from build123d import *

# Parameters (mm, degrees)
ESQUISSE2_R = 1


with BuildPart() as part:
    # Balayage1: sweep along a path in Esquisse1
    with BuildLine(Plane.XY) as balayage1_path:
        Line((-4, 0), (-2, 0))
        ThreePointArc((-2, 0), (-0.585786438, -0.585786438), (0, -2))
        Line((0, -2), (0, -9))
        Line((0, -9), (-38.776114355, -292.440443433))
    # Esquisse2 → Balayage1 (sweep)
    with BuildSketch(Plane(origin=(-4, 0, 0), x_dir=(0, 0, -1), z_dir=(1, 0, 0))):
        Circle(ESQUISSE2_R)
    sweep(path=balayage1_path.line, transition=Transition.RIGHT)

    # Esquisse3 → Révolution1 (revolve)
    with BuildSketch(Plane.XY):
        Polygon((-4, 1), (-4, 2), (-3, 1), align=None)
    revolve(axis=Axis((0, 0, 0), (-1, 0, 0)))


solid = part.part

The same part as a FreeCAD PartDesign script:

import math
import FreeCAD as App
import Part
import Sketcher

V = App.Vector
Q = App.Units.Quantity


def add_polygon(sketch, points):
    """Adds a closed chain of lines whose ends are joined by coincident constraints."""
    first, n = sketch.GeometryCount, len(points)
    for a, b in zip(points, points[1:] + points[:1]):
        sketch.addGeometry(Part.LineSegment(App.Vector(*a, 0), App.Vector(*b, 0)), False)
    for i in range(n):
        sketch.addConstraint(Sketcher.Constraint("Coincident", first + i, 2, first + (i + 1) % n, 1))

doc = App.newDocument("Part")
body = doc.addObject("PartDesign::Body", "Body")

# Sketch on YZ plane
sketch1 = body.newObject("Sketcher::SketchObject", "Sketch")
sketch1.AttachmentSupport = (doc.getObject("YZ_Plane"), [""])
sketch1.MapMode = "FlatFace"
sketch1.AttachmentOffset = App.Placement(V(0, 0, -4), App.Rotation())
sketch1.addGeometry(Part.Circle(V(0, 0, 0), V(0, 0, 1), 1), False)
sketch1.addConstraint([
    Sketcher.Constraint("Coincident", 0, 3, -1, 1),
    Sketcher.Constraint("Diameter", 0, Q("2 mm")),
])

# Sketch on XY plane
sketch2 = body.newObject("Sketcher::SketchObject", "Sketch001")
sketch2.AttachmentSupport = (doc.getObject("XY_Plane"), [""])
sketch2.MapMode = "FlatFace"
sketch2.addGeometry([
    Part.LineSegment(V(-4, 0, 0), V(-2, 0, 0)),
    Part.ArcOfCircle(Part.Circle(V(-2, -2, 0), V(0, 0, 1), 2), math.radians(0), math.radians(90)),
    Part.LineSegment(V(0, -2, 0), V(0, -9, 0)),
    Part.LineSegment(V(0, -9, 0), V(-38.8, -292.4, 0)),
], False)
sketch2.addConstraint([
    Sketcher.Constraint("Tangent", 0, 2, 1, 2),
    Sketcher.Constraint("Tangent", 1, 1, 2, 1),
    Sketcher.Constraint("Coincident", 2, 2, 3, 1),
    Sketcher.Constraint("Horizontal", 0),
    Sketcher.Constraint("Vertical", 2),
    Sketcher.Constraint("PointOnObject", 0, 1, -1),
    Sketcher.Constraint("PointOnObject", 1, 1, -2),
    Sketcher.Constraint("Radius", 1, Q("2 mm")),
    Sketcher.Constraint("DistanceX", 0, 1, 0, 2, Q("2 mm")),
    Sketcher.Constraint("DistanceY", 2, 2, 2, 1, Q("7 mm")),
    Sketcher.Constraint("Angle", 3, Q("-97.79 deg")),
    Sketcher.Constraint("Distance", 3, Q("286.080534 mm")),
])
doc.recompute()

additivepipe = body.newObject("PartDesign::AdditivePipe", "AdditivePipe")
additivepipe.Profile = sketch1
additivepipe.Spine = (sketch2, ["Edge1", "Edge2", "Edge3", "Edge4"])
additivepipe.Transition = "Right corner"

# Sketch on XY plane
sketch3 = body.newObject("Sketcher::SketchObject", "Sketch002")
sketch3.AttachmentSupport = (doc.getObject("XY_Plane"), [""])
sketch3.MapMode = "FlatFace"
add_polygon(sketch3, [(-4, 2), (-4, 1), (-3, 1)])  # lines 0-2
sketch3.addConstraint([
    Sketcher.Constraint("Vertical", 0),
    Sketcher.Constraint("Horizontal", 1),
    Sketcher.Constraint("Equal", 1, 0),
    Sketcher.Constraint("DistanceX", 1, 1, 1, 2, Q("1 mm")),
    Sketcher.Constraint("DistanceX", 0, 2, -1, 1, Q("4 mm")),
    Sketcher.Constraint("DistanceY", -1, 1, 0, 2, Q("1 mm")),
])
revolution = body.newObject("PartDesign::Revolution", "Revolution")
revolution.Profile = sketch3
revolution.ReferenceAxis = (sketch3, ["H_Axis"])
revolution.Angle = 360

doc.recompute()
